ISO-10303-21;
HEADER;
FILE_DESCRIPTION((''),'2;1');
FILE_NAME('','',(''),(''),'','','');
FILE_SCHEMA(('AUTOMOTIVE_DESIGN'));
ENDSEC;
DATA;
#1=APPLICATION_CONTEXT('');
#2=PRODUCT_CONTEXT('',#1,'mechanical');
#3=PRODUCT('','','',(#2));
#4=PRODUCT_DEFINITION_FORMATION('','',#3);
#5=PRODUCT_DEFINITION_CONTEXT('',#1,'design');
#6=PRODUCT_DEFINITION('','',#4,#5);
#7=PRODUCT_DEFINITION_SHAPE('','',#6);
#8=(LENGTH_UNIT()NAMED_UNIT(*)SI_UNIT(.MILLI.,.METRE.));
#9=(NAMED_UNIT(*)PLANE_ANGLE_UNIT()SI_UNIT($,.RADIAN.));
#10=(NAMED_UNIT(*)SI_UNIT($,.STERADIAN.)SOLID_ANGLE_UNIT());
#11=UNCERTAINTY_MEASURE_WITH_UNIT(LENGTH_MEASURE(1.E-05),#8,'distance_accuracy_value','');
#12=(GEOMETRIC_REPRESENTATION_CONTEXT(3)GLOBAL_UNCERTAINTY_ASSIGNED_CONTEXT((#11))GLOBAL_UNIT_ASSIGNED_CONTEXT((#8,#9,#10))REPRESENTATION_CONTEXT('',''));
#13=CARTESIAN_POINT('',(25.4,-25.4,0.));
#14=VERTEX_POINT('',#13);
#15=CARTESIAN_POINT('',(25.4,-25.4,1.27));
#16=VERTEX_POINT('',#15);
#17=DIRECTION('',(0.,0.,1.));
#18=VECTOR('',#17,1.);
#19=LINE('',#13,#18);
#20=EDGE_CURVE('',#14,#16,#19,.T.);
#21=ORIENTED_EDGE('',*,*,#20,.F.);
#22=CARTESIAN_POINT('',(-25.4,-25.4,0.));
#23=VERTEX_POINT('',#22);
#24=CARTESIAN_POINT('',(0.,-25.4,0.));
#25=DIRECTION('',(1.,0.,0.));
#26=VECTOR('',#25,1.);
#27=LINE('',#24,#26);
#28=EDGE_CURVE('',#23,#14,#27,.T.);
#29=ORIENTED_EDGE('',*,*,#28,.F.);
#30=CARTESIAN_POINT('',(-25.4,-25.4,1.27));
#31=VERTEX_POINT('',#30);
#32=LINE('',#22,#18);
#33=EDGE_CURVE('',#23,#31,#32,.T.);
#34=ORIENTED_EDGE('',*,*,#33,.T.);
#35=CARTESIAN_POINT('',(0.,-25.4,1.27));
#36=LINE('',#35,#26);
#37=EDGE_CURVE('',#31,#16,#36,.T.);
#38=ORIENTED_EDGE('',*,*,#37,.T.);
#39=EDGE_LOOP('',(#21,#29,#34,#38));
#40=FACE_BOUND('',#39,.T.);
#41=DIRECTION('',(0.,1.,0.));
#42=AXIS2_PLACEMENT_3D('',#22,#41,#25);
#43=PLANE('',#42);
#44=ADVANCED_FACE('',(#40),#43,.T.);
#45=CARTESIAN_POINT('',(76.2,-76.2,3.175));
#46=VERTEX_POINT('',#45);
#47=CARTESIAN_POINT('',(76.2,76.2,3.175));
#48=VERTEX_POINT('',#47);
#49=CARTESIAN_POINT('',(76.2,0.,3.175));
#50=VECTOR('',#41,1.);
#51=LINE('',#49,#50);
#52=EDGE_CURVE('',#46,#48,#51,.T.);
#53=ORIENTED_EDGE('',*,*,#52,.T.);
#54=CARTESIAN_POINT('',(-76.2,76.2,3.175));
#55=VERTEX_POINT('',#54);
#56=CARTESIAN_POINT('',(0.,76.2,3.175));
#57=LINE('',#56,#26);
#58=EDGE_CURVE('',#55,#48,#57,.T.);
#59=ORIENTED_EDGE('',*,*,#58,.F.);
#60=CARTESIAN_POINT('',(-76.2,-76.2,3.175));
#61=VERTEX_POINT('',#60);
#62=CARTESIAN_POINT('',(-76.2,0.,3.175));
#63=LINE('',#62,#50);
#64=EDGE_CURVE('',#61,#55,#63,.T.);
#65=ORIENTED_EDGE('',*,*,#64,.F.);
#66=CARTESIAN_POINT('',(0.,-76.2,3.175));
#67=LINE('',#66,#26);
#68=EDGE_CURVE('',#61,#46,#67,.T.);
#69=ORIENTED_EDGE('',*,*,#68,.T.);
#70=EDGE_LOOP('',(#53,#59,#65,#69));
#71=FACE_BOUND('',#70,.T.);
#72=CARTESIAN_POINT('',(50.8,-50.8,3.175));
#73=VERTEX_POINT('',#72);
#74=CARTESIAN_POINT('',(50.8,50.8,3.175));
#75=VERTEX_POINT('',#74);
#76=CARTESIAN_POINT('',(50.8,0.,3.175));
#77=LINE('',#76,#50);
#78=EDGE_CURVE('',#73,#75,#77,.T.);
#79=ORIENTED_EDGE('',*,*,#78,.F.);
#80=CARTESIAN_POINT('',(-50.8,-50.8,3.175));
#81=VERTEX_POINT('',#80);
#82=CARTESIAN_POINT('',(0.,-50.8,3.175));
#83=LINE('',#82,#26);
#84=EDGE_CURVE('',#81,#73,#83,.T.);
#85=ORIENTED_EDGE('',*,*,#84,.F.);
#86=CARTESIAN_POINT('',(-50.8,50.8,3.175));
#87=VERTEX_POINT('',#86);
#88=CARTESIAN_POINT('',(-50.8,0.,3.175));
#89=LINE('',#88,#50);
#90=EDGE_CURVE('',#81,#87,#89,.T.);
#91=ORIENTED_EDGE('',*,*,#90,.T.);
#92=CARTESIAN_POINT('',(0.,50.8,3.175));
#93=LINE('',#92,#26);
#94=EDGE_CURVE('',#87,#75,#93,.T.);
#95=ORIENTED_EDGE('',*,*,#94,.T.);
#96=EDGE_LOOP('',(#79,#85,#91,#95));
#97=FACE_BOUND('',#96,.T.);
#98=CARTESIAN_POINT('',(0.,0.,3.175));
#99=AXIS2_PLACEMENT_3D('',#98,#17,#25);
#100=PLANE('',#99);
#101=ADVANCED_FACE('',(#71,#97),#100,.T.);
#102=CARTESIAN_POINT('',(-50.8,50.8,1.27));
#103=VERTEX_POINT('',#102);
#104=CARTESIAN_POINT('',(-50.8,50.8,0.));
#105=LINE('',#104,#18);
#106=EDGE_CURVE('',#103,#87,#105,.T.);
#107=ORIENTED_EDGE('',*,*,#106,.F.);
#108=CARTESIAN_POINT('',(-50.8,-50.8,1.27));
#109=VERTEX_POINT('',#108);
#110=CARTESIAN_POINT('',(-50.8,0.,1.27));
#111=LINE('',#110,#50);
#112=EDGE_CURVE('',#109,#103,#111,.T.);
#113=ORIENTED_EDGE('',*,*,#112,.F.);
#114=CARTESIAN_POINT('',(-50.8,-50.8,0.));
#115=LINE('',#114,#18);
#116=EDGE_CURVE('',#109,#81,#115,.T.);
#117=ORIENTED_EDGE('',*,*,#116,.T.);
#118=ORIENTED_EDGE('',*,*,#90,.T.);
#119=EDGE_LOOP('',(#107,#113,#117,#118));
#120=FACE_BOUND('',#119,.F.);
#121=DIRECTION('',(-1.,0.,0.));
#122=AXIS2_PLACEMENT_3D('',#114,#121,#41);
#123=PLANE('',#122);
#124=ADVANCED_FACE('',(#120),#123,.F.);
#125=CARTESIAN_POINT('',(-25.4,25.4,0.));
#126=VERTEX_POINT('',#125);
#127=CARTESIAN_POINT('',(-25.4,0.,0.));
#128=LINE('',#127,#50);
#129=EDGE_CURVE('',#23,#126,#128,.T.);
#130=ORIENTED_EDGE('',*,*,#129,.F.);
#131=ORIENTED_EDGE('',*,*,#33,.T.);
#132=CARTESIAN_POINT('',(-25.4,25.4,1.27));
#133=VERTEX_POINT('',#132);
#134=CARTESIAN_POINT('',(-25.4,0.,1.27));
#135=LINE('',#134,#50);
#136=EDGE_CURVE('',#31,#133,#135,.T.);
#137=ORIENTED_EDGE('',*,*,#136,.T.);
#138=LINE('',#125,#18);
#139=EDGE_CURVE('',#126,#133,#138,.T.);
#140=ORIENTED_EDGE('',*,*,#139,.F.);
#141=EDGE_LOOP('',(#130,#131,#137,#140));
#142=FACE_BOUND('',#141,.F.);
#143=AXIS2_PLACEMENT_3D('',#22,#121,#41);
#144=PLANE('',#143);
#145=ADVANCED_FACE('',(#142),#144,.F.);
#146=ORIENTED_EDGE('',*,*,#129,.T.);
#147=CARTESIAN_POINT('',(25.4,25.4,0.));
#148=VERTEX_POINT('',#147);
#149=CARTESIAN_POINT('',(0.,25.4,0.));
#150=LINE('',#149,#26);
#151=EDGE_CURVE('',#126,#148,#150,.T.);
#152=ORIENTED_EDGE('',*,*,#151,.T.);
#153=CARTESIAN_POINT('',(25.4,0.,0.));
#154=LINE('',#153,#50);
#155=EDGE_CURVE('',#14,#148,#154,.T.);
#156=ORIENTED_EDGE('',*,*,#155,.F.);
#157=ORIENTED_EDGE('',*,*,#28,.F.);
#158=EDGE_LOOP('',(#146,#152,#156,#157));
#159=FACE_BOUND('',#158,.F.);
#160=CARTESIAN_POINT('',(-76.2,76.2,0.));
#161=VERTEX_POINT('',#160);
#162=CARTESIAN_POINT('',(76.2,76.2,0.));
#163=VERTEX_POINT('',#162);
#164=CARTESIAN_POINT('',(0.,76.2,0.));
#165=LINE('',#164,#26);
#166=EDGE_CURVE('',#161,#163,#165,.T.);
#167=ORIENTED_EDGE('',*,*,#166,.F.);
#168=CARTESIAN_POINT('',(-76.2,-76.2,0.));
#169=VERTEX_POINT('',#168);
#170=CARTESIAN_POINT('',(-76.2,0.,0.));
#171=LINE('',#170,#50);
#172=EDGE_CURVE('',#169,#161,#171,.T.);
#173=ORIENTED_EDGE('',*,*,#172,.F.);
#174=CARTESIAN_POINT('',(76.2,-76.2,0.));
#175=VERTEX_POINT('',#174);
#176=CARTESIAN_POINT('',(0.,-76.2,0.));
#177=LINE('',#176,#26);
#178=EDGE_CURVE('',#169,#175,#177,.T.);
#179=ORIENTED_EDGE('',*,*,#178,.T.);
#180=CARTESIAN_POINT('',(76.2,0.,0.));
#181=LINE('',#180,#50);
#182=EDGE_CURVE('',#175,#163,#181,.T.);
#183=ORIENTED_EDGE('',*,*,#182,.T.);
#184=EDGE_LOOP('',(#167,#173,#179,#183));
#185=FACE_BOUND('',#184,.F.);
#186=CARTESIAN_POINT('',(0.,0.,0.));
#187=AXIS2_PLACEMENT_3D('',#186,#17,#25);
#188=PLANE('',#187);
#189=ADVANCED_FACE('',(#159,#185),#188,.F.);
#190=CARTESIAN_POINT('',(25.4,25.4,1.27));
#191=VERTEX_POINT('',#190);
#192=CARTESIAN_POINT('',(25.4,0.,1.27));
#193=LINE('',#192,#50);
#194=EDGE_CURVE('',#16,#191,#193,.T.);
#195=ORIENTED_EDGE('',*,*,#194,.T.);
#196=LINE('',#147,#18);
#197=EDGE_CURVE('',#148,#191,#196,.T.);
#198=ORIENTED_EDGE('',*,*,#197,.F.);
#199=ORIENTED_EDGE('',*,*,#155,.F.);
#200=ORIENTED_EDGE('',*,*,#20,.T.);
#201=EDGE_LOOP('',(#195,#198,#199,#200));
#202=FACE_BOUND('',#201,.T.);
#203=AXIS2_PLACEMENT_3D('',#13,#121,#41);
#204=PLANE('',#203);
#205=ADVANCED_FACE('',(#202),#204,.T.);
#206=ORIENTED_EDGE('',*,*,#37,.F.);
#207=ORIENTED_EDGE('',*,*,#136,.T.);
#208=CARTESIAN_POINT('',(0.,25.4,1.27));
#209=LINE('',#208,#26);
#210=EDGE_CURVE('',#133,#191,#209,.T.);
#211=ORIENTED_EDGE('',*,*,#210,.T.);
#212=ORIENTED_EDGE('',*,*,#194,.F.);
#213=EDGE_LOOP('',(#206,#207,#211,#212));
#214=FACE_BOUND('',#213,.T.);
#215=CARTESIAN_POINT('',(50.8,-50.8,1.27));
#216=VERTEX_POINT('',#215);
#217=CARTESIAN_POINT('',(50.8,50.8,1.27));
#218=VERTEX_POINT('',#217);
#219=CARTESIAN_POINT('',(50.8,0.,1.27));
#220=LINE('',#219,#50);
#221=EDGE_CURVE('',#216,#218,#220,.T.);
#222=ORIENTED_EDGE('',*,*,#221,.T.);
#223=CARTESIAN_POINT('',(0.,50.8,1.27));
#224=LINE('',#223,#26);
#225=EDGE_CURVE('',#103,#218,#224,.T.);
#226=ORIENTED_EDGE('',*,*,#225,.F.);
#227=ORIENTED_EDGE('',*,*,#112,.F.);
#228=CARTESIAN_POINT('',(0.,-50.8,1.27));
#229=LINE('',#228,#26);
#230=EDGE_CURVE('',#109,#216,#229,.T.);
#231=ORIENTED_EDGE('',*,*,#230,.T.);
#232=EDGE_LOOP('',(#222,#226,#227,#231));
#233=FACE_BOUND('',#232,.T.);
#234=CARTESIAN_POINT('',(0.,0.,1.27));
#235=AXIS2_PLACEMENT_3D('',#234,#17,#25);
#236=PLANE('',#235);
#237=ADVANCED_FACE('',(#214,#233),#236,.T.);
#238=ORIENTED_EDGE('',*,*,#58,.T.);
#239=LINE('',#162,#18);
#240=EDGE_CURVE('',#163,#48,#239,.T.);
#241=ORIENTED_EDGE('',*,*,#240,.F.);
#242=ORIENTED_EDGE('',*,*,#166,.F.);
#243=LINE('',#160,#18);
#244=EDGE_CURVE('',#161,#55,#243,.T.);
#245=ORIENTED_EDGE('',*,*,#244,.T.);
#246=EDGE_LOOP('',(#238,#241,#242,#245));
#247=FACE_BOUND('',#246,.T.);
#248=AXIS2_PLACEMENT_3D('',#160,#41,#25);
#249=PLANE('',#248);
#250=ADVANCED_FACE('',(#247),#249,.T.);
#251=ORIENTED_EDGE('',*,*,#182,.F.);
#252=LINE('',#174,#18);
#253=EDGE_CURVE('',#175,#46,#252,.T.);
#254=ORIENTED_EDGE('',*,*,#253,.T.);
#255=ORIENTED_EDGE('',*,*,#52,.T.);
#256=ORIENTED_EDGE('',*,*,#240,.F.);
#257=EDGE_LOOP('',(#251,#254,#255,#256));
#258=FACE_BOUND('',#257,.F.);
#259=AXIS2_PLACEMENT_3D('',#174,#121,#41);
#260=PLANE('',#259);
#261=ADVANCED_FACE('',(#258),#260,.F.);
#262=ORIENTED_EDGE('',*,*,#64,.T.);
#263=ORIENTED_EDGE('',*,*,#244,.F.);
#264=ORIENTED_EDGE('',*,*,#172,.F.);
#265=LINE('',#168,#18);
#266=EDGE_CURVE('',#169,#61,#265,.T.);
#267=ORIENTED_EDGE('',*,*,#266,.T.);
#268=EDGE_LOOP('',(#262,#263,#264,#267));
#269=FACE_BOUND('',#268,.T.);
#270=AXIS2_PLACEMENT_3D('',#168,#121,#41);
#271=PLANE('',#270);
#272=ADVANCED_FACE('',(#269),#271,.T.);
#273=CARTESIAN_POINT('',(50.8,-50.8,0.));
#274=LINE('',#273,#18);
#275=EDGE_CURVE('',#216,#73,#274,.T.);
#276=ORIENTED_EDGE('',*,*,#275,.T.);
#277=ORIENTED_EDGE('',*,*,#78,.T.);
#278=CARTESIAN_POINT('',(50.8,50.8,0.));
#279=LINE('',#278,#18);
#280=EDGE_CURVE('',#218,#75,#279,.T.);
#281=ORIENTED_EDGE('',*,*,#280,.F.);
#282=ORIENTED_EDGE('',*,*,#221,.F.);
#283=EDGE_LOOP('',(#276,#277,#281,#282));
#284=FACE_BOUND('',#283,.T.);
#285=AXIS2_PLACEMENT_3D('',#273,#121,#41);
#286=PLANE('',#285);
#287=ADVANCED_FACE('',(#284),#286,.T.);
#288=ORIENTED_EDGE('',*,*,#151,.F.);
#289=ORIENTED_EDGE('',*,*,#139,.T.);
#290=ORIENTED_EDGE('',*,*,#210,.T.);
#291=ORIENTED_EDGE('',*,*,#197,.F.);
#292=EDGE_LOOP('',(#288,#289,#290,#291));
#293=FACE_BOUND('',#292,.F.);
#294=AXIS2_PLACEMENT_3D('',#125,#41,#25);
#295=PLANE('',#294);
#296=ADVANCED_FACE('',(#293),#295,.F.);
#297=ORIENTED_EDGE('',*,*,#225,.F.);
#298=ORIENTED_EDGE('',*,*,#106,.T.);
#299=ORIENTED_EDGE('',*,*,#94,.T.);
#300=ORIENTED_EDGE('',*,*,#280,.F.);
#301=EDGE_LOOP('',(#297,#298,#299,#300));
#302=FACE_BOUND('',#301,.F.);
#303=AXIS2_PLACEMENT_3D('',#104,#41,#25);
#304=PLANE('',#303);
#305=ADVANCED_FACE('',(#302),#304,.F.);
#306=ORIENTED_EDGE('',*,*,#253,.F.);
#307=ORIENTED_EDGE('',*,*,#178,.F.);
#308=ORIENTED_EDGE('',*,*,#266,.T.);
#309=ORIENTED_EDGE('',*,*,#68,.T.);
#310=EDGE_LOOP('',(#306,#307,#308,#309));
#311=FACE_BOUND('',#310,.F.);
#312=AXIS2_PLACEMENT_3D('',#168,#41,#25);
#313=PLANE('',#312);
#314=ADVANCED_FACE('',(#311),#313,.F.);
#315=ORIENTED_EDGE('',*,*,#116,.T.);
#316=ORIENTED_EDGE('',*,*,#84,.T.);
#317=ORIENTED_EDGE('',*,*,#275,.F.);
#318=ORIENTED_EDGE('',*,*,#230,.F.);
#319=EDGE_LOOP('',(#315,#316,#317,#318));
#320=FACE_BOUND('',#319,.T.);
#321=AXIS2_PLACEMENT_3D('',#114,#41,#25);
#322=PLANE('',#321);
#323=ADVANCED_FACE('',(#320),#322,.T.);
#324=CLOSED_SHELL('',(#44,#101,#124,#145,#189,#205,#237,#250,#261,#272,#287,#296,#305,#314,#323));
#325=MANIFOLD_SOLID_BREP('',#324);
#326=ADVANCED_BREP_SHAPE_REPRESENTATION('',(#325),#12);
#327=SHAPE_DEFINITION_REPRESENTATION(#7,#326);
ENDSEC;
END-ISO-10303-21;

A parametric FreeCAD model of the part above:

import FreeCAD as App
import Part
import Sketcher
Q = App.Units.Quantity

doc = App.newDocument("Part")
params = doc.addObject("Spreadsheet::Sheet", "Params")
for row, (alias, value) in enumerate([
    ("sketch1_width", "6 in"),
    ("sketch1_width2", "4 in"),
    ("pad1_length", "0.125 in"),
    ("sketch2_width", "4 in"),
    ("sketch2_width2", "2 in"),
    ("pad2_length", "0.05 in"),
], start=1):
    params.set(f"A{row}", alias)
    params.set(f"B{row}", "=" + value)
    params.setAlias(f"B{row}", alias)

body = doc.addObject("PartDesign::Body", "Body")

# Sketch on XY plane
sketch1 = doc.addObject("Sketcher::SketchObject", "Sketch")
body.addObject(sketch1)
sketch1.AttachmentSupport = (doc.XY_Plane, [""])
sketch1.MapMode = "FlatFace"
sketch1.addGeometry([
    Part.LineSegment(App.Vector(-76.2, 76.2, 0), App.Vector(-76.2, -76.2, 0)),  # 0
    Part.LineSegment(App.Vector(-76.2, -76.2, 0), App.Vector(76.2, -76.2, 0)),  # 1
    Part.LineSegment(App.Vector(76.2, -76.2, 0), App.Vector(76.2, 76.2, 0)),  # 2
    Part.LineSegment(App.Vector(76.2, 76.2, 0), App.Vector(-76.2, 76.2, 0)),  # 3
    Part.LineSegment(App.Vector(50.8, -50.8, 0), App.Vector(-50.8, -50.8, 0)),  # 4
    Part.LineSegment(App.Vector(-50.8, -50.8, 0), App.Vector(-50.8, 50.8, 0)),  # 5
    Part.LineSegment(App.Vector(-50.8, 50.8, 0), App.Vector(50.8, 50.8, 0)),  # 6
    Part.LineSegment(App.Vector(50.8, 50.8, 0), App.Vector(50.8, -50.8, 0)),  # 7
], False)
sketch1.addConstraint([
    Sketcher.Constraint("Coincident", 0, 2, 1, 1),
    Sketcher.Constraint("Coincident", 1, 2, 2, 1),
    Sketcher.Constraint("Coincident", 2, 2, 3, 1),
    Sketcher.Constraint("Coincident", 3, 2, 0, 1),
    Sketcher.Constraint("Coincident", 4, 2, 5, 1),
    Sketcher.Constraint("Coincident", 5, 2, 6, 1),
    Sketcher.Constraint("Coincident", 6, 2, 7, 1),
    Sketcher.Constraint("Coincident", 7, 2, 4, 1),
    Sketcher.Constraint("Vertical", 0),
    Sketcher.Constraint("Horizontal", 1),
    Sketcher.Constraint("Vertical", 2),
    Sketcher.Constraint("Horizontal", 3),
    Sketcher.Constraint("Horizontal", 4),
    Sketcher.Constraint("Vertical", 5),
    Sketcher.Constraint("Horizontal", 6),
    Sketcher.Constraint("Vertical", 7),
    Sketcher.Constraint("Symmetric", 0, 2, 2, 2, -1, 1),
    Sketcher.Constraint("Symmetric", 4, 2, 6, 2, -1, 1),
    Sketcher.Constraint("Equal", 3, 0),
    Sketcher.Constraint("Equal", 6, 5),
    Sketcher.Constraint("DistanceX", 1, 1, 1, 2, Q("6 in")),
    Sketcher.Constraint("DistanceX", 4, 2, 4, 1, Q("4 in")),
])
sketch1.setExpression("Constraints[20]", "Params.sketch1_width")
sketch1.setExpression("Constraints[21]", "Params.sketch1_width2")
pad1 = doc.addObject("PartDesign::Pad", "Pad")
body.addObject(pad1)
pad1.Profile = sketch1
pad1.setExpression("Length", "Params.pad1_length")

# Sketch on XY plane
sketch2 = doc.addObject("Sketcher::SketchObject", "Sketch001")
body.addObject(sketch2)
sketch2.AttachmentSupport = (doc.XY_Plane, [""])
sketch2.MapMode = "FlatFace"
sketch2.addGeometry([
    Part.LineSegment(App.Vector(-50.8, 50.8, 0), App.Vector(-50.8, -50.8, 0)),  # 0
    Part.LineSegment(App.Vector(-50.8, -50.8, 0), App.Vector(50.8, -50.8, 0)),  # 1
    Part.LineSegment(App.Vector(50.8, -50.8, 0), App.Vector(50.8, 50.8, 0)),  # 2
    Part.LineSegment(App.Vector(50.8, 50.8, 0), App.Vector(-50.8, 50.8, 0)),  # 3
    Part.LineSegment(App.Vector(25.4, -25.4, 0), App.Vector(-25.4, -25.4, 0)),  # 4
    Part.LineSegment(App.Vector(-25.4, -25.4, 0), App.Vector(-25.4, 25.4, 0)),  # 5
    Part.LineSegment(App.Vector(-25.4, 25.4, 0), App.Vector(25.4, 25.4, 0)),  # 6
    Part.LineSegment(App.Vector(25.4, 25.4, 0), App.Vector(25.4, -25.4, 0)),  # 7
], False)
sketch2.addConstraint([
    Sketcher.Constraint("Coincident", 0, 2, 1, 1),
    Sketcher.Constraint("Coincident", 1, 2, 2, 1),
    Sketcher.Constraint("Coincident", 2, 2, 3, 1),
    Sketcher.Constraint("Coincident", 3, 2, 0, 1),
    Sketcher.Constraint("Coincident", 4, 2, 5, 1),
    Sketcher.Constraint("Coincident", 5, 2, 6, 1),
    Sketcher.Constraint("Coincident", 6, 2, 7, 1),
    Sketcher.Constraint("Coincident", 7, 2, 4, 1),
    Sketcher.Constraint("Vertical", 0),
    Sketcher.Constraint("Horizontal", 1),
    Sketcher.Constraint("Vertical", 2),
    Sketcher.Constraint("Horizontal", 3),
    Sketcher.Constraint("Horizontal", 4),
    Sketcher.Constraint("Vertical", 5),
    Sketcher.Constraint("Horizontal", 6),
    Sketcher.Constraint("Vertical", 7),
    Sketcher.Constraint("Symmetric", 0, 2, 2, 2, -1, 1),
    Sketcher.Constraint("Symmetric", 4, 2, 6, 2, -1, 1),
    Sketcher.Constraint("Equal", 3, 0),
    Sketcher.Constraint("Equal", 6, 5),
    Sketcher.Constraint("DistanceX", 1, 1, 1, 2, Q("4 in")),
    Sketcher.Constraint("DistanceX", 4, 2, 4, 1, Q("2 in")),
])
sketch2.setExpression("Constraints[20]", "Params.sketch2_width")
sketch2.setExpression("Constraints[21]", "Params.sketch2_width2")
pad2 = doc.addObject("PartDesign::Pad", "Pad001")
body.addObject(pad2)
pad2.Profile = sketch2
pad2.setExpression("Length", "Params.pad2_length")

doc.recompute()
